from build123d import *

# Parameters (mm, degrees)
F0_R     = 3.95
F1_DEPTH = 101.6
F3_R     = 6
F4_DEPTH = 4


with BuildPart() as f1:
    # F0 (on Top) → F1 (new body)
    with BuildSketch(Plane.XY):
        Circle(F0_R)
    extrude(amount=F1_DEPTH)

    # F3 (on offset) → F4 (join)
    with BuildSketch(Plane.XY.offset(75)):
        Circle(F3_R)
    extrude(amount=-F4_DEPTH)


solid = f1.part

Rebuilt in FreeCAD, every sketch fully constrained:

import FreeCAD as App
import Part
import Sketcher
from FreeCAD import Vector

doc = App.newDocument("Part")
body = doc.addObject("PartDesign::Body", "Body")

sketch1 = doc.addObject("Sketcher::SketchObject", "Sketch")
body.addObject(sketch1)
sketch1.AttachmentSupport = (doc.XY_Plane, [""])
sketch1.MapMode = "FlatFace"
sketch1.addGeometry(Part.Circle(Vector(0, 0, 0), Vector(0, 0, 1), 3.95), False)
sketch1.addConstraint(Sketcher.Constraint("Coincident", 0, 3, -1, 1))
sketch1.addConstraint(Sketcher.Constraint("Diameter", 0, 7.9))
pad1 = doc.addObject("PartDesign::Pad", "Pad")
body.addObject(pad1)
pad1.Profile = sketch1
pad1.Length = 101.6

sketch2 = doc.addObject("Sketcher::SketchObject", "Sketch001")
body.addObject(sketch2)
sketch2.AttachmentSupport = (doc.XY_Plane, [""])
sketch2.MapMode = "FlatFace"
sketch2.AttachmentOffset = App.Placement(Vector(0, 0, 75), App.Rotation())
sketch2.addGeometry(Part.Circle(Vector(0, 0, 0), Vector(0, 0, 1), 6), False)
sketch2.addConstraint(Sketcher.Constraint("Coincident", 0, 3, -1, 1))
sketch2.addConstraint(Sketcher.Constraint("Diameter", 0, 12.0))
pad2 = doc.addObject("PartDesign::Pad", "Pad001")
body.addObject(pad2)
pad2.Profile = sketch2
pad2.Length = 4
pad2.Reversed = True

doc.recompute()
